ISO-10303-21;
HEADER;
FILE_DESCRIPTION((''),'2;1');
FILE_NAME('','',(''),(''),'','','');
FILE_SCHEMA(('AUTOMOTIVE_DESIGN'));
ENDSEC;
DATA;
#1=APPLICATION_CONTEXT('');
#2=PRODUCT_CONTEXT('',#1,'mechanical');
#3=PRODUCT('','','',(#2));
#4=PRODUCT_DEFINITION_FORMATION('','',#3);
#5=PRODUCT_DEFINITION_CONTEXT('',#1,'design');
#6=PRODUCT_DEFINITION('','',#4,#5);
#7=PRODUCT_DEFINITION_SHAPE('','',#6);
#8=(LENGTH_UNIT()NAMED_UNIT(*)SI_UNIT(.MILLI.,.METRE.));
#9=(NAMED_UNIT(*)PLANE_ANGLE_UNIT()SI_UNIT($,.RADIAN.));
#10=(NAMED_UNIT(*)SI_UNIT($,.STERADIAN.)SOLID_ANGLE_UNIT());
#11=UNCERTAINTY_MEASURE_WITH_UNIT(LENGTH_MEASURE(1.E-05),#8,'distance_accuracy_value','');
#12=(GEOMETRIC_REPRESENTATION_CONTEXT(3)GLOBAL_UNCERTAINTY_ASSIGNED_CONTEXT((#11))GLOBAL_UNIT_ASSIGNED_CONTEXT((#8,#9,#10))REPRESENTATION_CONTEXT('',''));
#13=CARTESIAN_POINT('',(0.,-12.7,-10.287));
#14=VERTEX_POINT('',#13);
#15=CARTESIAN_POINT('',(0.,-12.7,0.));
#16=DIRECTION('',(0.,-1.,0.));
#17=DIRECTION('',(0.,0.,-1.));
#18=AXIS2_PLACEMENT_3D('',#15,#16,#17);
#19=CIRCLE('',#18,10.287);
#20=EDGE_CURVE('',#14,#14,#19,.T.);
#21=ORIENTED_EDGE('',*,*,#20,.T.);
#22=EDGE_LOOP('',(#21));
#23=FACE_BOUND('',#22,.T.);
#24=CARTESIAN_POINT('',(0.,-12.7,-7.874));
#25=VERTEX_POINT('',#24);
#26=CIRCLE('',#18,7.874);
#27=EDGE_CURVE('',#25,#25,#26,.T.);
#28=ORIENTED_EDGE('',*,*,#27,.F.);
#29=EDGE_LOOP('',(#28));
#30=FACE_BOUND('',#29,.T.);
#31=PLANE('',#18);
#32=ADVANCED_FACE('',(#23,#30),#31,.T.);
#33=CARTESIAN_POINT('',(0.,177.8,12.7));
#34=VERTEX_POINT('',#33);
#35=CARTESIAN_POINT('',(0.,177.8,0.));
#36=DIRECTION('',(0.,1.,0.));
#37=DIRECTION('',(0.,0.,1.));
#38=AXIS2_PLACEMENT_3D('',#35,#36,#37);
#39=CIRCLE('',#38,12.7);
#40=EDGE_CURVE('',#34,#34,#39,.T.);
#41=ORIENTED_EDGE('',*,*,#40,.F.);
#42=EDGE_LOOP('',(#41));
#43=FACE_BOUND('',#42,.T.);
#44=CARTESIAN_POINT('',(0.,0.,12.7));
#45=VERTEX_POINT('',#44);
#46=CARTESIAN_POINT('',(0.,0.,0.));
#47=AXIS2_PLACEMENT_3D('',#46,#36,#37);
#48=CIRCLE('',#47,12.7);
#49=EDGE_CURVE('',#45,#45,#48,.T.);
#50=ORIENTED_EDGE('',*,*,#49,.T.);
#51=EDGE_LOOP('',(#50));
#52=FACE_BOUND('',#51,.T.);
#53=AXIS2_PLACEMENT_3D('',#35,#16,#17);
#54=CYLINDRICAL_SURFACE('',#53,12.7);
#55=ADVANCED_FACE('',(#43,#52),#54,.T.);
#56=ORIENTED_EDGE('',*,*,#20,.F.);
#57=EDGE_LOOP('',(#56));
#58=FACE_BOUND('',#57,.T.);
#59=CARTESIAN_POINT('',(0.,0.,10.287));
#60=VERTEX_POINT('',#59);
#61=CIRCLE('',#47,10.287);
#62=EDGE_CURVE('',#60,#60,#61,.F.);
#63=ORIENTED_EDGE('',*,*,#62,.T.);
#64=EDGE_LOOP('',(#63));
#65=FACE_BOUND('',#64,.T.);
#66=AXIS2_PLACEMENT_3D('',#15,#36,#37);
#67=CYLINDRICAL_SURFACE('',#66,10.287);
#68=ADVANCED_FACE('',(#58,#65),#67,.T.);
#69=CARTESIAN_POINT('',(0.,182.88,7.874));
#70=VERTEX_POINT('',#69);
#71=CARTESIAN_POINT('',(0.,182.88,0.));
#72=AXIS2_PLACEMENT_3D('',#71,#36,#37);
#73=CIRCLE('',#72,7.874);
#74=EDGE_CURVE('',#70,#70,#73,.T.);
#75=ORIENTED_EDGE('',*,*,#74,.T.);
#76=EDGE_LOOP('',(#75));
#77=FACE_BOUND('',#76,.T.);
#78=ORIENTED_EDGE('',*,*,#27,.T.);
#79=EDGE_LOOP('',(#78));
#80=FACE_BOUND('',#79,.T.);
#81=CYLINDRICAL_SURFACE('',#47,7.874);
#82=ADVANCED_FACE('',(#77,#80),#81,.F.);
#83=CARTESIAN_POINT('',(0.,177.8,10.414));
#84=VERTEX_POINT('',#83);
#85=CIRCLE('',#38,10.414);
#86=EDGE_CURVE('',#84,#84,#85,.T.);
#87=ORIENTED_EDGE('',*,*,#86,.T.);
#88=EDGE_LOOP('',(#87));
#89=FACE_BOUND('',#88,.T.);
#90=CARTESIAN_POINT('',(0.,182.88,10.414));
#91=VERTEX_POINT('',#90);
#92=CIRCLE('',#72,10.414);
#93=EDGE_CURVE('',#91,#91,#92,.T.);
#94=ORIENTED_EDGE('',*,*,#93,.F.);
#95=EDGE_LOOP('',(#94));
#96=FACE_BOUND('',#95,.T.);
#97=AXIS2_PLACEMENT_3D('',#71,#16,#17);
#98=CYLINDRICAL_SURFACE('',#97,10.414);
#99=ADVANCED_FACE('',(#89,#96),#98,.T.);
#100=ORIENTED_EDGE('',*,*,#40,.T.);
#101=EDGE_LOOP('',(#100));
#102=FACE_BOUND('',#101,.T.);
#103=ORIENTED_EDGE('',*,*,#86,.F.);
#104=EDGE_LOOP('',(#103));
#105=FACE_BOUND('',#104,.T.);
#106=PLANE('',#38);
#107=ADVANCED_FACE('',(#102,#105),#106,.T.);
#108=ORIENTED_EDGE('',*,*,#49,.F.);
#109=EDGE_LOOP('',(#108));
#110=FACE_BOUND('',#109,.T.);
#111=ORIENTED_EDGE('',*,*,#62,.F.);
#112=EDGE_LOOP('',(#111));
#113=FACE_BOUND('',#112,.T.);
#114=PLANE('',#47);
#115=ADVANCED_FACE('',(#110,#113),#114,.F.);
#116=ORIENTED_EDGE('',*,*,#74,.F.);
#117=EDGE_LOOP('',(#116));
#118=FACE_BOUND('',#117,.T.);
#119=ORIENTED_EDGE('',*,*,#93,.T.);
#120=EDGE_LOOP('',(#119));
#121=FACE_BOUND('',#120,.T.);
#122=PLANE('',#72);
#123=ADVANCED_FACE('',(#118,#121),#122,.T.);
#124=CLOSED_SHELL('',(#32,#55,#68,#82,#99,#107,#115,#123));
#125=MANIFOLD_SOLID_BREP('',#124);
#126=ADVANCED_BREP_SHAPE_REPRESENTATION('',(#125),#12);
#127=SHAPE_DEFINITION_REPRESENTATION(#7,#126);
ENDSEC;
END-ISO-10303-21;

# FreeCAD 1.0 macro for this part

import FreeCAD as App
import Part
import Sketcher
Q = App.Units.Quantity

doc = App.newDocument("Part")
body = doc.addObject("PartDesign::Body", "Body")

# Sketch on XZ plane
sketch1 = body.newObject("Sketcher::SketchObject", "Sketch")
sketch1.AttachmentSupport = (doc.getObject("XZ_Plane"), [""])
sketch1.MapMode = "FlatFace"
sketch1.addGeometry(Part.Circle(App.Vector(0, 0, 0), App.Vector(0, 0, 1), 12.7), False)
sketch1.addConstraint(Sketcher.Constraint("Coincident", 0, 3, -1, 1))
sketch1.addConstraint(Sketcher.Constraint("Diameter", 0, Q("1 in")))
pad1 = body.newObject("PartDesign::Pad", "Pad")
pad1.Profile = sketch1
pad1.Length = Q("7 in")
pad1.Reversed = True

# Sketch on XZ plane
sketch2 = body.newObject("Sketcher::SketchObject", "Sketch001")
sketch2.AttachmentSupport = (doc.getObject("XZ_Plane"), [""])
sketch2.MapMode = "FlatFace"
sketch2.AttachmentOffset = App.Placement(App.Vector(0, 0, -7 * 25.4), App.Rotation())
sketch2.addGeometry(Part.Circle(App.Vector(0, 0, 0), App.Vector(0, 0, 1), 10.414), False)
sketch2.addConstraint(Sketcher.Constraint("Coincident", 0, 3, -1, 1))
sketch2.addConstraint(Sketcher.Constraint("Diameter", 0, Q("0.82 in")))
pad2 = body.newObject("PartDesign::Pad", "Pad001")
pad2.Profile = sketch2
pad2.Length = Q("0.2 in")
pad2.Reversed = True

# Sketch on XZ plane
sketch3 = body.newObject("Sketcher::SketchObject", "Sketch002")
sketch3.AttachmentSupport = (doc.getObject("XZ_Plane"), [""])
sketch3.MapMode = "FlatFace"
sketch3.AttachmentOffset = App.Placement(App.Vector(0, 0, -7.2 * 25.4), App.Rotation())
sketch3.addGeometry(Part.Circle(App.Vector(0, 0, 0), App.Vector(0, 0, 1), 7.874), False)
sketch3.addConstraint(Sketcher.Constraint("Coincident", 0, 3, -1, 1))
sketch3.addConstraint(Sketcher.Constraint("Diameter", 0, Q("0.62 in")))
pocket1 = body.newObject("PartDesign::Pocket", "Pocket")
pocket1.Profile = sketch3
pocket1.Type = "ThroughAll"
pocket1.Reversed = True

# Sketch on XZ plane
sketch4 = body.newObject("Sketcher::SketchObject", "Sketch003")
sketch4.AttachmentSupport = (doc.getObject("XZ_Plane"), [""])
sketch4.MapMode = "FlatFace"
sketch4.addGeometry(Part.Circle(App.Vector(0, 0, 0), App.Vector(0, 0, 1), 10.287), False)
sketch4.addGeometry(Part.Circle(App.Vector(0, 0, 0), App.Vector(0, 0, 1), 7.874), False)
sketch4.addConstraint(Sketcher.Constraint("Coincident", 0, 3, -1, 1))
sketch4.addConstraint(Sketcher.Constraint("Coincident", 1, 3, -1, 1))
sketch4.addConstraint(Sketcher.Constraint("Diameter", 0, Q("0.81 in")))
sketch4.addConstraint(Sketcher.Constraint("Diameter", 1, Q("0.62 in")))
pad3 = body.newObject("PartDesign::Pad", "Pad002")
pad3.Profile = sketch4
pad3.Length = Q("0.5 in")

doc.recompute()
